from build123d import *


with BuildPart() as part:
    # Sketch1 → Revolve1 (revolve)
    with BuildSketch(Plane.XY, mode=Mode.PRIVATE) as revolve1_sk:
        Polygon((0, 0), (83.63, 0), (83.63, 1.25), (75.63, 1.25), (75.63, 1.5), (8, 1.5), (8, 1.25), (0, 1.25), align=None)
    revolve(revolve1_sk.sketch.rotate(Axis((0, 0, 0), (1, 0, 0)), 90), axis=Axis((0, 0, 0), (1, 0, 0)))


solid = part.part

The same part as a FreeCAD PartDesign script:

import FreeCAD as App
import Part
import Sketcher

V = App.Vector
Q = App.Units.Quantity


def add_polygon(sketch, points):
    """Adds a closed chain of lines whose ends are joined by coincident constraints."""
    first, n = sketch.GeometryCount, len(points)
    for a, b in zip(points, points[1:] + points[:1]):
        sketch.addGeometry(Part.LineSegment(App.Vector(*a, 0), App.Vector(*b, 0)), False)
    for i in range(n):
        sketch.addConstraint(Sketcher.Constraint("Coincident", first + i, 2, first + (i + 1) % n, 1))

doc = App.newDocument("Part")
body = doc.addObject("PartDesign::Body", "Body")

# Sketch on XY plane
sketch1 = doc.addObject("Sketcher::SketchObject", "Sketch")
body.addObject(sketch1)
sketch1.AttachmentSupport = (doc.XY_Plane, [""])
sketch1.MapMode = "FlatFace"
add_polygon(sketch1, [(0, 0), (83.63, 0), (83.63, 1.25), (75.63, 1.25), (75.63, 1.5), (8, 1.5), (8, 1.25), (0, 1.25)])  # lines 0-7
sketch1.addConstraint([
    Sketcher.Constraint("Horizontal", 0),
    Sketcher.Constraint("Vertical", 1),
    Sketcher.Constraint("Horizontal", 2),
    Sketcher.Constraint("Vertical", 3),
    Sketcher.Constraint("Horizontal", 4),
    Sketcher.Constraint("Vertical", 5),
    Sketcher.Constraint("Horizontal", 6),
    Sketcher.Constraint("Vertical", 7),
    Sketcher.Constraint("Coincident", 7, 2, -1, 1),
    Sketcher.Constraint("Horizontal", 2, 2, 5, 2),
    Sketcher.Constraint("Equal", 2, 6),
    Sketcher.Constraint("DistanceX", 2, 2, 2, 1, Q("8 mm")),
    Sketcher.Constraint("DistanceX", 0, 1, 0, 2, Q("83.63 mm")),
    Sketcher.Constraint("DistanceY", 1, 1, 1, 2, Q("1.25 mm")),
    Sketcher.Constraint("DistanceY", 3, 1, 3, 2, Q("0.25 mm")),
])
revolution = doc.addObject("PartDesign::Revolution", "Revolution")
body.addObject(revolution)
revolution.Profile = sketch1
revolution.ReferenceAxis = (sketch1, ["H_Axis"])
revolution.Angle = 360

doc.recompute()
